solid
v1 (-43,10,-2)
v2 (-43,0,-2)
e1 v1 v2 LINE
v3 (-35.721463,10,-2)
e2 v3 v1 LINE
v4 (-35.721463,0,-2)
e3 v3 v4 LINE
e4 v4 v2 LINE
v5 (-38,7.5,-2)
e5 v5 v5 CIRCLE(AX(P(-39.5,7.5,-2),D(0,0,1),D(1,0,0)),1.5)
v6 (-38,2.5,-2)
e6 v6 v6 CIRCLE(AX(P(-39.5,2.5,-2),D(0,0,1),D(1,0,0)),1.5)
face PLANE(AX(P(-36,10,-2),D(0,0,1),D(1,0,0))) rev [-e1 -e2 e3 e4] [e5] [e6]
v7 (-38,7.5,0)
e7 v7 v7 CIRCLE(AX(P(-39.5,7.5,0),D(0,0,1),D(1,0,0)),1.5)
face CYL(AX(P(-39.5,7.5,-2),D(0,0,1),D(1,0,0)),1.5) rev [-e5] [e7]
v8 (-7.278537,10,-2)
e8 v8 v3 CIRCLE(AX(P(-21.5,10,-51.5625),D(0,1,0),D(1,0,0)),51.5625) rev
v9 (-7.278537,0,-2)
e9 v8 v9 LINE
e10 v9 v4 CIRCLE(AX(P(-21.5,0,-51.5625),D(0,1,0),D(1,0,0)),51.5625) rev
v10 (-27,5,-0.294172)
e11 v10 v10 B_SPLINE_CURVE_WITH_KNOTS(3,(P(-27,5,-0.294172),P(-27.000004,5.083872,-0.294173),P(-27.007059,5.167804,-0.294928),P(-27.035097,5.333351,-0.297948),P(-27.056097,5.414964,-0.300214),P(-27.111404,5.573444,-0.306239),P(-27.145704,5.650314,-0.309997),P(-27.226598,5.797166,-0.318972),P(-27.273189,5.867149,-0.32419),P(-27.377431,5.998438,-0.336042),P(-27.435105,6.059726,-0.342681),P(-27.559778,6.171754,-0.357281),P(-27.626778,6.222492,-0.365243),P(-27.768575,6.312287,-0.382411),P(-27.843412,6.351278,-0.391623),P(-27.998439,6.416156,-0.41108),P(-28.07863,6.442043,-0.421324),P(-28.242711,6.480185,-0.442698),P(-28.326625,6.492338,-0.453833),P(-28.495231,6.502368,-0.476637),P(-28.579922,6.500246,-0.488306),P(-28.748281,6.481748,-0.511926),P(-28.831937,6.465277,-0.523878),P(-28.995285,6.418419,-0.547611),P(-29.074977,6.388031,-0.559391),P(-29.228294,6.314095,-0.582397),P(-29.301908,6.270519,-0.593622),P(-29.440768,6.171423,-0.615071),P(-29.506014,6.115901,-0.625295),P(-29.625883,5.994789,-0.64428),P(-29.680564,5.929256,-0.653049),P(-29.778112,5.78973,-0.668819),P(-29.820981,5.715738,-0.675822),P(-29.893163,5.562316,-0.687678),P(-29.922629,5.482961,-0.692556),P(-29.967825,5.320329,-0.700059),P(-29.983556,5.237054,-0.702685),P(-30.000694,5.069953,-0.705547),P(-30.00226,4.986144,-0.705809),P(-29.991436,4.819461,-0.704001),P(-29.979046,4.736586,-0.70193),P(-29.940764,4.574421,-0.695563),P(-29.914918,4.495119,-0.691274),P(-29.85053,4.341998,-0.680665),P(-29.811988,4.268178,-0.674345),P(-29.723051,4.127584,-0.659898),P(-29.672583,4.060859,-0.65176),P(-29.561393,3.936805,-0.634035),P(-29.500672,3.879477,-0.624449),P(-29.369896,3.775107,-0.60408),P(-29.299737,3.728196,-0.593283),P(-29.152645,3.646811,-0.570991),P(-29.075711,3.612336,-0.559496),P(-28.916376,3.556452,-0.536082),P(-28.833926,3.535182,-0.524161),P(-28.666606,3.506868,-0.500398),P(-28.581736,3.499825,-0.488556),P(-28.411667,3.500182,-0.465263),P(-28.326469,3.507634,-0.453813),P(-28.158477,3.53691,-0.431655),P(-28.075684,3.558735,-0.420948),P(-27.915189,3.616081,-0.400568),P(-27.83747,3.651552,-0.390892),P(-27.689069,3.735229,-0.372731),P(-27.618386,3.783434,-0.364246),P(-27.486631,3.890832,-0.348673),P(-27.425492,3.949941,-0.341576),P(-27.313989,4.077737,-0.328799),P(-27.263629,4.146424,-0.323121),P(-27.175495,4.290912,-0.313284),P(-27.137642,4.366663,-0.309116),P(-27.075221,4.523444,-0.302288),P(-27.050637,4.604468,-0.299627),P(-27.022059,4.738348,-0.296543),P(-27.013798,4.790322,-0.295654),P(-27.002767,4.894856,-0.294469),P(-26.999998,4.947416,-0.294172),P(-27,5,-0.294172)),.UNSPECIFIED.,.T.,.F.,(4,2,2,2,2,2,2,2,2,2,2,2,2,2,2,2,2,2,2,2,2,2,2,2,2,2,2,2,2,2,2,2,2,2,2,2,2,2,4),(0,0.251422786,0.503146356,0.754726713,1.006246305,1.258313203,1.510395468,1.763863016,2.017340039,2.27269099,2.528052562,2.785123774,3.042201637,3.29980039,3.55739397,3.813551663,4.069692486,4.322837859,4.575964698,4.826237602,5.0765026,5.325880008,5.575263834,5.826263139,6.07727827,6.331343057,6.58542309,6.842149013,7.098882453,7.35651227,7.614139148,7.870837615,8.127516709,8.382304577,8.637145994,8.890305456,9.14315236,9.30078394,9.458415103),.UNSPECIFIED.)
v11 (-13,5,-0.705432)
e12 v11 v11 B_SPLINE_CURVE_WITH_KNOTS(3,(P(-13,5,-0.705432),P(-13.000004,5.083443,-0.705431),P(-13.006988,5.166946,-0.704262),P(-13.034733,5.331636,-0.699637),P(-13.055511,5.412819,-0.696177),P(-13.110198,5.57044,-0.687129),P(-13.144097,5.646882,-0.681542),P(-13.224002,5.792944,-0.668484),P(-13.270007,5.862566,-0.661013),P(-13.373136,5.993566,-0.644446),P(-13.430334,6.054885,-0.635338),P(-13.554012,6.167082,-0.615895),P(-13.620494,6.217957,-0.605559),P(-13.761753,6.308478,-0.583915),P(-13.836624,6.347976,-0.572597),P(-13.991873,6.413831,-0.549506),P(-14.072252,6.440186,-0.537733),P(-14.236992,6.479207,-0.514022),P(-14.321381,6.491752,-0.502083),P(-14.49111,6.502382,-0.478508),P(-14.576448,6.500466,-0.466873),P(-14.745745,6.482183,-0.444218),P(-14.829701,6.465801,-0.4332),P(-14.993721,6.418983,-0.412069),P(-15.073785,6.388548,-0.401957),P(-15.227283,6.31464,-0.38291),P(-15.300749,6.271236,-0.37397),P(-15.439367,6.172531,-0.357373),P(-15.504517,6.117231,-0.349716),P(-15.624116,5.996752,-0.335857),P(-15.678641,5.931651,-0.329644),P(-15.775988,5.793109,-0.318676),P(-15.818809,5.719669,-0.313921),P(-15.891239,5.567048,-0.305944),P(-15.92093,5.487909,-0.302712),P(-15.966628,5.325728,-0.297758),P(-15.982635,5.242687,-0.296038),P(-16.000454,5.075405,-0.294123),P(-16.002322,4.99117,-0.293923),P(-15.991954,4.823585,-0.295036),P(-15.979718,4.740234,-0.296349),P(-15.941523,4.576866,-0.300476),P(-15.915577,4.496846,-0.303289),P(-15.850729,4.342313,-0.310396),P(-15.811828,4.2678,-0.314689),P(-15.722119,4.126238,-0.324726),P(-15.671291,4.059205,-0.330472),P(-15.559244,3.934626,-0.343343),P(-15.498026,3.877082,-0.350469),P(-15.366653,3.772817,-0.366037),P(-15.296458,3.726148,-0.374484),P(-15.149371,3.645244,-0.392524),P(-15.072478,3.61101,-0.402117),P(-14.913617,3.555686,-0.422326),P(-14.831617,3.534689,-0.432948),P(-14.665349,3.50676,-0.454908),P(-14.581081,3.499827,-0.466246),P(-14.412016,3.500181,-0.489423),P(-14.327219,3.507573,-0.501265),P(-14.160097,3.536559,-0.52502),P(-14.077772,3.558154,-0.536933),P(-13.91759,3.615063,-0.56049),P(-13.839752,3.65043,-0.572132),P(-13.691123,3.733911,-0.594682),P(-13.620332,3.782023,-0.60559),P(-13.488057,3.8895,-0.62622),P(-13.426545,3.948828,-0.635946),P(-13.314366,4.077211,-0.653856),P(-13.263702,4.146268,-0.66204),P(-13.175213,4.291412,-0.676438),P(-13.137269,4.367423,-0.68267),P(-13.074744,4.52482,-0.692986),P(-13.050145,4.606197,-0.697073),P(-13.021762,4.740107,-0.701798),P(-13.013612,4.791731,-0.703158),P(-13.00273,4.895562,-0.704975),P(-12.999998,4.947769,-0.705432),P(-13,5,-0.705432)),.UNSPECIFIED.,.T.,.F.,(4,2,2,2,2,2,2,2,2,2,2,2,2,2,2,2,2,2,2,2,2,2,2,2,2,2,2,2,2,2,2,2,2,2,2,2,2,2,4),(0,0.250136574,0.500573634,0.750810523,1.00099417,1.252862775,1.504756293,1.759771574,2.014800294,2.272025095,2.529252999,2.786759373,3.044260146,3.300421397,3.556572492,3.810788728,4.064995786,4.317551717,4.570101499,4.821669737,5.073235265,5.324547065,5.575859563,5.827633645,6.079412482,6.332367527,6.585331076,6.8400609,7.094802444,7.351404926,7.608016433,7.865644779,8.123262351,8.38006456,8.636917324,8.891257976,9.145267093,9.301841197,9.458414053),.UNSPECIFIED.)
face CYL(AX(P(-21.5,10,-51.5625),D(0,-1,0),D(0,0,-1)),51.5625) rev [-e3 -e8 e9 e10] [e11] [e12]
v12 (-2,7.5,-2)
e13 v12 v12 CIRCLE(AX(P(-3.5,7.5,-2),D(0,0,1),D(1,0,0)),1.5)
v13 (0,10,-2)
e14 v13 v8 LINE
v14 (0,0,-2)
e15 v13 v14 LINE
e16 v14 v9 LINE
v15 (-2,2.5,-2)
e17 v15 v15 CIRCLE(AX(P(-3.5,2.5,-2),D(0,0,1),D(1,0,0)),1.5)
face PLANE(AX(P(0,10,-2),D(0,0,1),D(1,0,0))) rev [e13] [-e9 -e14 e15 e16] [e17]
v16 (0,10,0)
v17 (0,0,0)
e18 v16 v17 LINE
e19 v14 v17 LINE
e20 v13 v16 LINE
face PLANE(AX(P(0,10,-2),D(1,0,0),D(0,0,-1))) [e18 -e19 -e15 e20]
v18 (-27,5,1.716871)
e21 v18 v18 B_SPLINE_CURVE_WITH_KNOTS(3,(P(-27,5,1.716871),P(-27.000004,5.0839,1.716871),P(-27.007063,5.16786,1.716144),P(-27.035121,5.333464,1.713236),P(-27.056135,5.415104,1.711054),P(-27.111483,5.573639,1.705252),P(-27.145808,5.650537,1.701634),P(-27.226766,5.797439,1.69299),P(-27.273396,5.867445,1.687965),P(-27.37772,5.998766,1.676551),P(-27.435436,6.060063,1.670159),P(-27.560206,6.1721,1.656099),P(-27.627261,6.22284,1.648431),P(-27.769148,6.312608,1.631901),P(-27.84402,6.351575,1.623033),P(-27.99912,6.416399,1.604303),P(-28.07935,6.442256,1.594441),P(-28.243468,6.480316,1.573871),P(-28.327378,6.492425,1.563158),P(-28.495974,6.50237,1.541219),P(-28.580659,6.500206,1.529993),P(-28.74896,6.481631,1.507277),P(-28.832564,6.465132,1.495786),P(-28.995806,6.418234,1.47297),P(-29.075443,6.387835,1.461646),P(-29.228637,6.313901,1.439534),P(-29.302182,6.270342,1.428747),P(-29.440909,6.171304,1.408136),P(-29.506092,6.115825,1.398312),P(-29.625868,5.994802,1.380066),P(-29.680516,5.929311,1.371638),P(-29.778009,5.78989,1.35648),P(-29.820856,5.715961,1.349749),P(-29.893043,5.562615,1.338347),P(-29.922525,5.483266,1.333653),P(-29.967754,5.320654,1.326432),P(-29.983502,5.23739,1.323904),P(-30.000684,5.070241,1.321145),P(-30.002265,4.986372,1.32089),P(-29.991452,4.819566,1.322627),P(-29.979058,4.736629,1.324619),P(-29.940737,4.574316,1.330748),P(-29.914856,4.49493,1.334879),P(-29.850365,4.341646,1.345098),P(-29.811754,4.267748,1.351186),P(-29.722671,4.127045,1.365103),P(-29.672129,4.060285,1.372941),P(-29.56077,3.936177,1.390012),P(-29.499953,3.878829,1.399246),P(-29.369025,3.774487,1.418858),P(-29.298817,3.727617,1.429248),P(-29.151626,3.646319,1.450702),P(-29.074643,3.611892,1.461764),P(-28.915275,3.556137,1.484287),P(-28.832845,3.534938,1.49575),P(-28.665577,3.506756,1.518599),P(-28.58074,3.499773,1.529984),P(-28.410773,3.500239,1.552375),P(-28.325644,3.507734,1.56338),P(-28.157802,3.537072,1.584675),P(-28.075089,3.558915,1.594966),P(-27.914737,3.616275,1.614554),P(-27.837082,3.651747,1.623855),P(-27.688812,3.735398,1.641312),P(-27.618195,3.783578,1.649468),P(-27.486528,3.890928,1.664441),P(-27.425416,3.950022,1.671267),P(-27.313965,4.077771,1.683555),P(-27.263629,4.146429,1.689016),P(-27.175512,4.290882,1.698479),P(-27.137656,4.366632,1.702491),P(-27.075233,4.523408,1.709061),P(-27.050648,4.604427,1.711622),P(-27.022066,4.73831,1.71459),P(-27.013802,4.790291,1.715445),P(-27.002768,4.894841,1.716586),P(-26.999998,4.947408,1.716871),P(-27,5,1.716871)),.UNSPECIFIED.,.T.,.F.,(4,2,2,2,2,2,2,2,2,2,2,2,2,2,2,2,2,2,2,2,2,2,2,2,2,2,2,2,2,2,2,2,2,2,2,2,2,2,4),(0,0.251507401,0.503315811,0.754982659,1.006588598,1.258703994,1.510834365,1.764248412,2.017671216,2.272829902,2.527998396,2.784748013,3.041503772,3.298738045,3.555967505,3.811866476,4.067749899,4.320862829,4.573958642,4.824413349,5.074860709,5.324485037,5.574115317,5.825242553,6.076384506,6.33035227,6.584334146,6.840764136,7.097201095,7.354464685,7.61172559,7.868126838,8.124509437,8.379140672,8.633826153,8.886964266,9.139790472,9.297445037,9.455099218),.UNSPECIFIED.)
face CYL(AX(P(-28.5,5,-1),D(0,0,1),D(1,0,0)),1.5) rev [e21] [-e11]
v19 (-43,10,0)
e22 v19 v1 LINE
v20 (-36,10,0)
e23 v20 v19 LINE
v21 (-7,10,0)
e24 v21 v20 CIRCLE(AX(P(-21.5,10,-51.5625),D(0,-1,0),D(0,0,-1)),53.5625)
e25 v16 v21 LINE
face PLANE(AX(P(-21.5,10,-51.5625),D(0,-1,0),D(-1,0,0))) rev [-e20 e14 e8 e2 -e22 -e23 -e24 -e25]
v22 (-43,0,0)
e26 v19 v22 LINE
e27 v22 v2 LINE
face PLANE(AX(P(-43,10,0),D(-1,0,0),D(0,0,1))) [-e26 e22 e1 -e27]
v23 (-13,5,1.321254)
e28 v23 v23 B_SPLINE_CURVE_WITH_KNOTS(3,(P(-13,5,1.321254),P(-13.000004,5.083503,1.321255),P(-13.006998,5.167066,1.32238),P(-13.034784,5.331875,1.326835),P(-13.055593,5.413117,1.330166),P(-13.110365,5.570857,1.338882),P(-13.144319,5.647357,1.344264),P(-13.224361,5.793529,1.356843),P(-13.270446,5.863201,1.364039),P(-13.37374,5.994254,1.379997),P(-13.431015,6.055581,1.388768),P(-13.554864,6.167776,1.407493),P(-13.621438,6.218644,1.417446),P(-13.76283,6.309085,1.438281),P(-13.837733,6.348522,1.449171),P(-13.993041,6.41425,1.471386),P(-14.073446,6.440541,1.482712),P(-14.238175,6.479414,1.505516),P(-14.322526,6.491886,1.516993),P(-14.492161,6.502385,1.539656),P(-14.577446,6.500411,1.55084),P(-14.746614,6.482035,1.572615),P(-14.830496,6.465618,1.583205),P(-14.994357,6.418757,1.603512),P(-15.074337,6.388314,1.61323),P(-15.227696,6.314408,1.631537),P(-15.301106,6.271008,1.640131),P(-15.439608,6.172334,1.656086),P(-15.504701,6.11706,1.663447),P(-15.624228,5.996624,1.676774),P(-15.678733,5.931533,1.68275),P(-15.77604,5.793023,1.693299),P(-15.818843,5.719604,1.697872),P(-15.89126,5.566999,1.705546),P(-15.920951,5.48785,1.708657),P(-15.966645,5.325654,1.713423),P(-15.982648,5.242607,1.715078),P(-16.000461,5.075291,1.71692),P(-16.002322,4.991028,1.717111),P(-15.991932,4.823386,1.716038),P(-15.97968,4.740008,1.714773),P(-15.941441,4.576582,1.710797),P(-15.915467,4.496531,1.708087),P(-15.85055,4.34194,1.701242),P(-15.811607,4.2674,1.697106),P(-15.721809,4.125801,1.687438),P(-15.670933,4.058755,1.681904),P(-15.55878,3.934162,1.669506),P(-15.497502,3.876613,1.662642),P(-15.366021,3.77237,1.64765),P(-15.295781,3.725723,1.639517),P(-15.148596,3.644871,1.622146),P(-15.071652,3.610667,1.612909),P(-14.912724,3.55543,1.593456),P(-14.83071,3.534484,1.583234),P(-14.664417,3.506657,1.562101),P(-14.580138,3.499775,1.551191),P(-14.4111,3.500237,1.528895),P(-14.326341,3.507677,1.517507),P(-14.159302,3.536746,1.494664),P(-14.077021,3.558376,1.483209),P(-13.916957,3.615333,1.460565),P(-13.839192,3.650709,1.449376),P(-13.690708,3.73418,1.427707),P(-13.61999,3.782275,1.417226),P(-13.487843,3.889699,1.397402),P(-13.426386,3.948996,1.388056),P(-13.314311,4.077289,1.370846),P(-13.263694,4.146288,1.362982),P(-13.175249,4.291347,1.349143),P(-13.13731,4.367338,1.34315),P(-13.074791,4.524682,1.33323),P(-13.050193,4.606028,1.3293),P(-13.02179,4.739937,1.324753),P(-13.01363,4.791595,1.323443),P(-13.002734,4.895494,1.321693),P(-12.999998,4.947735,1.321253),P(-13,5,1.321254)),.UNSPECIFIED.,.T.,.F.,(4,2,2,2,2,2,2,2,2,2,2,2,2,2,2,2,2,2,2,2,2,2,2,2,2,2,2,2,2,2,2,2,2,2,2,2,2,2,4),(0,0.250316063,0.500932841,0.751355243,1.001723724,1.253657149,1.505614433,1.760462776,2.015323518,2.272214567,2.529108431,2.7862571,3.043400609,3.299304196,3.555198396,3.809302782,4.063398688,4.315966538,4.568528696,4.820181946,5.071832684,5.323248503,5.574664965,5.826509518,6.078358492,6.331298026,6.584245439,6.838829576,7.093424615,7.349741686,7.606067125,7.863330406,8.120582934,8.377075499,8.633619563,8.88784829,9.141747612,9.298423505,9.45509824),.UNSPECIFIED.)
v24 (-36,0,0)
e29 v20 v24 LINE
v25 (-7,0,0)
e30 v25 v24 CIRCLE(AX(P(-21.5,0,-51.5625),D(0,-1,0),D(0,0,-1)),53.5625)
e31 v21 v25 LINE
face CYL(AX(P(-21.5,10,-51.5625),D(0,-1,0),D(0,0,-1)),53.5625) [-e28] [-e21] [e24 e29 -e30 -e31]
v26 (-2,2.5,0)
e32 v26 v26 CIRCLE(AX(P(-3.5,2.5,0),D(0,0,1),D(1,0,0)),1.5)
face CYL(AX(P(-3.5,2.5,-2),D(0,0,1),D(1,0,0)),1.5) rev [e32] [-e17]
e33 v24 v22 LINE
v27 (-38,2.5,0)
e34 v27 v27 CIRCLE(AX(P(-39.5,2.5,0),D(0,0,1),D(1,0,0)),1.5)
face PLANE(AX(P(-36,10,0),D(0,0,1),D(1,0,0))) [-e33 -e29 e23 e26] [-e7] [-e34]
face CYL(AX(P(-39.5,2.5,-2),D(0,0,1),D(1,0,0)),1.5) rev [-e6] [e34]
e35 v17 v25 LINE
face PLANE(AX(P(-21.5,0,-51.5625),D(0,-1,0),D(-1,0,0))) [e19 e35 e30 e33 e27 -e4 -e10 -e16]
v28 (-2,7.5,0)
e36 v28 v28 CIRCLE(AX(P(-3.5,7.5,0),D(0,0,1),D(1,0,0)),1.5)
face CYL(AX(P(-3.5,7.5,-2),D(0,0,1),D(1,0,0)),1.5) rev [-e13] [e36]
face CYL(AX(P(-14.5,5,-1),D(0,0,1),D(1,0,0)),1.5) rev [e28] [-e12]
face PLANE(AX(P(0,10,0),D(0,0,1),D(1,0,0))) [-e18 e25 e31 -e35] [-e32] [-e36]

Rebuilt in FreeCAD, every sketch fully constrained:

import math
import FreeCAD as App
import Part
import Sketcher
from FreeCAD import Vector

doc = App.newDocument("Part")
body = doc.addObject("PartDesign::Body", "Body")

# Sketch on XZ plane
sketch1 = doc.addObject("Sketcher::SketchObject", "Sketch")
body.addObject(sketch1)
sketch1.AttachmentSupport = (doc.XZ_Plane, [""])
sketch1.MapMode = "FlatFace"
sketch1.addGeometry([
    Part.LineSegment(Vector(-7, 0, 0), Vector(0, 0, 0)),  # 0
    Part.LineSegment(Vector(0, 0, 0), Vector(0, -2, 0)),  # 1
    Part.LineSegment(Vector(0, -2, 0), Vector(-7.3, -2, 0)),  # 2
    Part.ArcOfCircle(Part.Circle(Vector(-21.5, -51.6, 0), Vector(0, 0, 1), 51.6), math.radians(74), math.radians(106)),  # 3
    Part.LineSegment(Vector(-35.7, -2, 0), Vector(-43, -2, 0)),  # 4
    Part.LineSegment(Vector(-43, -2, 0), Vector(-43, 0, 0)),  # 5
    Part.LineSegment(Vector(-43, 0, 0), Vector(-36, 0, 0)),  # 6
    Part.ArcOfCircle(Part.Circle(Vector(-21.5, -51.6, 0), Vector(0, 0, 1), 53.6), math.radians(74), math.radians(106)),  # 7
], False)
sketch1.addConstraint([
    Sketcher.Constraint("Coincident", 0, 2, 1, 1),
    Sketcher.Constraint("Coincident", 1, 2, 2, 1),
    Sketcher.Constraint("Coincident", 2, 2, 3, 1),
    Sketcher.Constraint("Coincident", 3, 2, 4, 1),
    Sketcher.Constraint("Coincident", 4, 2, 5, 1),
    Sketcher.Constraint("Coincident", 5, 2, 6, 1),
    Sketcher.Constraint("Coincident", 6, 2, 7, 2),
    Sketcher.Constraint("Coincident", 7, 1, 0, 1),
    Sketcher.Constraint("Horizontal", 0),
    Sketcher.Constraint("Vertical", 1),
    Sketcher.Constraint("Horizontal", 2),
    Sketcher.Constraint("Horizontal", 4),
    Sketcher.Constraint("Vertical", 5),
    Sketcher.Constraint("Horizontal", 6),
    Sketcher.Constraint("Coincident", 0, 2, -1, 1),
    Sketcher.Constraint("Coincident", 7, 3, 3, 3),
    Sketcher.Constraint("PointOnObject", 5, 2, -1),
    Sketcher.Constraint("Horizontal", 2, 2, 3, 2),
    Sketcher.Constraint("Equal", 2, 4),
    Sketcher.Constraint("DistanceX", 0, 1, 0, 2, 7.0),
    Sketcher.Constraint("DistanceY", 1, 2, 1, 1, 2.0),
    Sketcher.Constraint("DistanceX", 4, 2, -1, 1, 43.0),
    Sketcher.Constraint("Radius", 3, 51.5625),
    Sketcher.Constraint("Radius", 7, 53.5625),
])
pad1 = doc.addObject("PartDesign::Pad", "Pad")
body.addObject(pad1)
pad1.Profile = sketch1
pad1.Length = 10
pad1.Reversed = True

# Sketch on XY plane
sketch2 = doc.addObject("Sketcher::SketchObject", "Sketch001")
body.addObject(sketch2)
sketch2.AttachmentSupport = (doc.XY_Plane, [""])
sketch2.MapMode = "FlatFace"
sketch2.addGeometry([
    Part.Circle(Vector(-39.5, 7.5, 0), Vector(0, 0, 1), 1.5),
    Part.Circle(Vector(-39.5, 2.5, 0), Vector(0, 0, 1), 1.5),
    Part.Circle(Vector(-3.5, 7.5, 0), Vector(0, 0, 1), 1.5),
    Part.Circle(Vector(-3.5, 2.5, 0), Vector(0, 0, 1), 1.5),
], False)
sketch2.addConstraint([
    Sketcher.Constraint("Equal", 0, 1),
    Sketcher.Constraint("Equal", 1, 2),
    Sketcher.Constraint("Equal", 2, 3),
    Sketcher.Constraint("Horizontal", 0, 3, 2, 3),
    Sketcher.Constraint("Horizontal", 1, 3, 3, 3),
    Sketcher.Constraint("Vertical", 0, 3, 1, 3),
    Sketcher.Constraint("Vertical", 2, 3, 3, 3),
    Sketcher.Constraint("Diameter", 0, 3.0),
    Sketcher.Constraint("DistanceY", 1, 3, 0, 3, 5.0),
    Sketcher.Constraint("DistanceX", 0, 3, 2, 3, 36.0),
    Sketcher.Constraint("DistanceX", 0, 3, -1, 1, 39.5),
    Sketcher.Constraint("DistanceY", -1, 1, 0, 3, 7.5),
])
pocket1 = doc.addObject("PartDesign::Pocket", "Pocket")
body.addObject(pocket1)
pocket1.Profile = sketch2
pocket1.Length = 2

# Sketch on XY plane
sketch3 = doc.addObject("Sketcher::SketchObject", "Sketch002")
body.addObject(sketch3)
sketch3.AttachmentSupport = (doc.XY_Plane, [""])
sketch3.MapMode = "FlatFace"
sketch3.AttachmentOffset = App.Placement(Vector(0, 0, 2), App.Rotation())
sketch3.addGeometry([
    Part.Circle(Vector(-28.5, 5, 0), Vector(0, 0, 1), 1.5),
    Part.Circle(Vector(-14.5, 5, 0), Vector(0, 0, 1), 1.5),
], False)
sketch3.addConstraint([
    Sketcher.Constraint("Equal", 0, 1),
    Sketcher.Constraint("Horizontal", 0, 3, 1, 3),
    Sketcher.Constraint("Diameter", 0, 3.0),
    Sketcher.Constraint("DistanceY", -1, 1, 0, 3, 5.0),
    Sketcher.Constraint("DistanceX", 0, 3, 1, 3, 14.0),
    Sketcher.Constraint("DistanceX", 0, 3, -1, 1, 28.5),
])
pocket2 = doc.addObject("PartDesign::Pocket", "Pocket001")
body.addObject(pocket2)
pocket2.Profile = sketch3
pocket2.Length = 3

doc.recompute()
